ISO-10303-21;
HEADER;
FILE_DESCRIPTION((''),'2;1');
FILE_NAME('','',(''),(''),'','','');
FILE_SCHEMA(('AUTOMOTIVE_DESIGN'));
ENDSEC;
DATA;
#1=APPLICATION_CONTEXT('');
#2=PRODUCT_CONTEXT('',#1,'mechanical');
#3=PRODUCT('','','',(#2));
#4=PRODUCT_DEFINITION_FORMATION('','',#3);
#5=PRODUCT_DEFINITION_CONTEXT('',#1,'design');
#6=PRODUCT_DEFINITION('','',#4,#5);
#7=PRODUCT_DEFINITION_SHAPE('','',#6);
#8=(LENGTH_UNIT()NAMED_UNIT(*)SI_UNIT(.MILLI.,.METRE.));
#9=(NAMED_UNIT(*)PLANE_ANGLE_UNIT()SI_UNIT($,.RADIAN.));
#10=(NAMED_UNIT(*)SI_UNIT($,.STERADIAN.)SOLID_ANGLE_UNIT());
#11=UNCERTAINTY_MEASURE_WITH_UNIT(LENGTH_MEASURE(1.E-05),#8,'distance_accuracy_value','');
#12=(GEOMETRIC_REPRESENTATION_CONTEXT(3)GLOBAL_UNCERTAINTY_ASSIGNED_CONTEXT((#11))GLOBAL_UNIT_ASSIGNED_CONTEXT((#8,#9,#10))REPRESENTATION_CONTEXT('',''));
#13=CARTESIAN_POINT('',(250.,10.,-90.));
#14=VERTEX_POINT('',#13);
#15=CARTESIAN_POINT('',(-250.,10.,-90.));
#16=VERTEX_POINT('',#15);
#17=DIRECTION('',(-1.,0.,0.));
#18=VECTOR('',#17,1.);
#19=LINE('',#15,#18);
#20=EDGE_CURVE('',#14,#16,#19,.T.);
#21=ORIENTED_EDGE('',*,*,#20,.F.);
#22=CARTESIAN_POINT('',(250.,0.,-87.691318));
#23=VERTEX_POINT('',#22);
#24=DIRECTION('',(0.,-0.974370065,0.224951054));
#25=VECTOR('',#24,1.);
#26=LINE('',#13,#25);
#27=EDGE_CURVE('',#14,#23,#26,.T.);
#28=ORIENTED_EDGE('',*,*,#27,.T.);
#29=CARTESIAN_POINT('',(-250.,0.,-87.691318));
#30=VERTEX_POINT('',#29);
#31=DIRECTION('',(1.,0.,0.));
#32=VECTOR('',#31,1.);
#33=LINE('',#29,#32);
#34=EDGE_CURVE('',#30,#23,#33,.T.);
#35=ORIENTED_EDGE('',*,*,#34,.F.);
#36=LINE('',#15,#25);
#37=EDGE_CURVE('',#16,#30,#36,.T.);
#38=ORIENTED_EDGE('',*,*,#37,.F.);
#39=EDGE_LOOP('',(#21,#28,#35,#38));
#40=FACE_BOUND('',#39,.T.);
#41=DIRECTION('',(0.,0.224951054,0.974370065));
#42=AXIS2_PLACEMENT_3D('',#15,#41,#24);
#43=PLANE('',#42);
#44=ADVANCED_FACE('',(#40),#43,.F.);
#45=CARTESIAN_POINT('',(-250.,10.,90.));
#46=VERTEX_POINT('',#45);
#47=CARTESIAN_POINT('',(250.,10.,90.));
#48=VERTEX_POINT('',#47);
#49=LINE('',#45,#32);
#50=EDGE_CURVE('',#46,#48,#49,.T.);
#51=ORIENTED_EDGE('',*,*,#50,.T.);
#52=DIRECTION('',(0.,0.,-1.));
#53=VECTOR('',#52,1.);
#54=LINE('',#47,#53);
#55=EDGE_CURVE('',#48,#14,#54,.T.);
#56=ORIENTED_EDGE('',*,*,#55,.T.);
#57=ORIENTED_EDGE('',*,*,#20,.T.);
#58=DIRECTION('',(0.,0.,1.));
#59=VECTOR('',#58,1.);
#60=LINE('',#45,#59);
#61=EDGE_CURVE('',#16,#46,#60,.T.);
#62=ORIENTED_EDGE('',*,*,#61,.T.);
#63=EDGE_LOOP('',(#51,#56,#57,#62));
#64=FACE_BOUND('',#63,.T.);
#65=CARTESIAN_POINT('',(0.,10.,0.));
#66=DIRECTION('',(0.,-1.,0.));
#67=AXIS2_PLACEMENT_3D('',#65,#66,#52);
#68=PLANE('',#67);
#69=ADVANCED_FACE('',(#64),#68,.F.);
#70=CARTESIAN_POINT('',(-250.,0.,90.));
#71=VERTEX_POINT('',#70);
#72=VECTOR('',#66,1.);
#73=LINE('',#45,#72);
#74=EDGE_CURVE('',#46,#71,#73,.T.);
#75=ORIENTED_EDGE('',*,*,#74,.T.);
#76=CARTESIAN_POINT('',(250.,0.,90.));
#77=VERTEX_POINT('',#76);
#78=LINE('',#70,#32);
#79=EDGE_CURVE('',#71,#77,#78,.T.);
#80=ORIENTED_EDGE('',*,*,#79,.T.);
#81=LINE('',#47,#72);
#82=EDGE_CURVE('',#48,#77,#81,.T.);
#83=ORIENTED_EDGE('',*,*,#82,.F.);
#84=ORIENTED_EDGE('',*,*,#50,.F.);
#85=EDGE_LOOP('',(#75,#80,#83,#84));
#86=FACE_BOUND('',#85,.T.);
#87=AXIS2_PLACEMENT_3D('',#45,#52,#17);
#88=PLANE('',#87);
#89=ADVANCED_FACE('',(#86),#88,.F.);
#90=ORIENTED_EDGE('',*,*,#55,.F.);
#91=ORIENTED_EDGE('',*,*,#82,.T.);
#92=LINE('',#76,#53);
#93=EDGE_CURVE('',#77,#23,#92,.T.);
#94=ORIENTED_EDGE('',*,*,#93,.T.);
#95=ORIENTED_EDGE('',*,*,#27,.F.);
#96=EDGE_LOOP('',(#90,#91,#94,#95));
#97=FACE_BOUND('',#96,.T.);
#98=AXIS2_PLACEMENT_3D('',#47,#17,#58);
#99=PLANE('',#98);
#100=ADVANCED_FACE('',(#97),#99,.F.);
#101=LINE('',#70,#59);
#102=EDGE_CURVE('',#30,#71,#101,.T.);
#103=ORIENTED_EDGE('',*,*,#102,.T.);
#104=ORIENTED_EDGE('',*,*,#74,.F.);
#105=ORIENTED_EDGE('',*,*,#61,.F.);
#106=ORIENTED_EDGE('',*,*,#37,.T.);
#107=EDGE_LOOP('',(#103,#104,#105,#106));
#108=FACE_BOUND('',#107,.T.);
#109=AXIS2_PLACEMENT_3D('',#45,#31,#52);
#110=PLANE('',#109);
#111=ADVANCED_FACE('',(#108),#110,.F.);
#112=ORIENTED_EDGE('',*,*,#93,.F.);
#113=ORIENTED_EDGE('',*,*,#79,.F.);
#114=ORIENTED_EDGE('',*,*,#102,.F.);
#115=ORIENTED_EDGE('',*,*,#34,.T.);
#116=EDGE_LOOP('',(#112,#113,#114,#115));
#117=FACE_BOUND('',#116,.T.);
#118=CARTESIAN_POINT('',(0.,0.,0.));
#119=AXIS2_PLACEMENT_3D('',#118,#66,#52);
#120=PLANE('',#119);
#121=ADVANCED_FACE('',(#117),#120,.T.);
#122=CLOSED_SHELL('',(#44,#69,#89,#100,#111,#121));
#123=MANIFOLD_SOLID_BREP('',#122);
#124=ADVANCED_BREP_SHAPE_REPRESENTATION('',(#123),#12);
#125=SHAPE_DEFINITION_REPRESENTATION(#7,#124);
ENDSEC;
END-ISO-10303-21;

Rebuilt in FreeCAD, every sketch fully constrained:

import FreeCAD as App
import Part
import Sketcher
Q = App.Units.Quantity


def add_polygon(sketch, points):
    """Adds a closed chain of lines whose ends are joined by coincident constraints."""
    first, n = sketch.GeometryCount, len(points)
    for a, b in zip(points, points[1:] + points[:1]):
        sketch.addGeometry(Part.LineSegment(App.Vector(*a, 0), App.Vector(*b, 0)), False)
    for i in range(n):
        sketch.addConstraint(Sketcher.Constraint("Coincident", first + i, 2, first + (i + 1) % n, 1))

doc = App.newDocument("Part")
params = doc.addObject("Spreadsheet::Sheet", "Params")
for row, (alias, value) in enumerate([
    ("sketch1_width", "500 mm"),
    ("sketch1_height", "180 mm"),
    ("pad1_length", "10 mm"),
    ("sketch2_width", "10 mm"),
], start=1):
    params.set(f"A{row}", alias)
    params.set(f"B{row}", "=" + value)
    params.setAlias(f"B{row}", alias)

body = doc.addObject("PartDesign::Body", "Body")

# Sketch on XZ plane
sketch1 = body.newObject("Sketcher::SketchObject", "Sketch")
sketch1.AttachmentSupport = (doc.getObject("XZ_Plane"), [""])
sketch1.MapMode = "FlatFace"
add_polygon(sketch1, [(-250, -90), (-250, 90), (250, 90), (250, -90)])  # lines 0-3
sketch1.addConstraint([
    Sketcher.Constraint("Vertical", 0),
    Sketcher.Constraint("Horizontal", 1),
    Sketcher.Constraint("Vertical", 2),
    Sketcher.Constraint("Horizontal", 3),
    Sketcher.Constraint("Symmetric", 0, 2, 2, 2, -1, 1),
    Sketcher.Constraint("DistanceX", 1, 1, 1, 2, Q("500 mm")),
    Sketcher.Constraint("DistanceY", 0, 1, 0, 2, Q("180 mm")),
])
sketch1.setExpression("Constraints[9]", "Params.sketch1_width")
sketch1.setExpression("Constraints[10]", "Params.sketch1_height")
pad1 = body.newObject("PartDesign::Pad", "Pad")
pad1.Profile = sketch1
pad1.setExpression("Length", "Params.pad1_length")
pad1.Reversed = True

# Sketch on YZ plane
sketch2 = body.newObject("Sketcher::SketchObject", "Sketch001")
sketch2.AttachmentSupport = (doc.getObject("YZ_Plane"), [""])
sketch2.MapMode = "FlatFace"
sketch2.AttachmentOffset = App.Placement(App.Vector(0, 0, 250), App.Rotation())
add_polygon(sketch2, [(10, -90), (0, -87.7), (0, -90)])  # lines 0-2
sketch2.addConstraint([
    Sketcher.Constraint("Vertical", 1),
    Sketcher.Constraint("Horizontal", 2),
    Sketcher.Constraint("PointOnObject", 0, 2, -2),
    Sketcher.Constraint("DistanceX", 2, 1, 2, 2, Q("10 mm")),
    Sketcher.Constraint("Angle", 0, Q("167 deg")),
    Sketcher.Constraint("DistanceY", 1, 2, -1, 1, Q("90 mm")),
])
sketch2.setExpression("Constraints[6]", "Params.sketch2_width")
pocket1 = body.newObject("PartDesign::Pocket", "Pocket")
pocket1.Profile = sketch2
pocket1.Type = "ThroughAll"

doc.recompute()
